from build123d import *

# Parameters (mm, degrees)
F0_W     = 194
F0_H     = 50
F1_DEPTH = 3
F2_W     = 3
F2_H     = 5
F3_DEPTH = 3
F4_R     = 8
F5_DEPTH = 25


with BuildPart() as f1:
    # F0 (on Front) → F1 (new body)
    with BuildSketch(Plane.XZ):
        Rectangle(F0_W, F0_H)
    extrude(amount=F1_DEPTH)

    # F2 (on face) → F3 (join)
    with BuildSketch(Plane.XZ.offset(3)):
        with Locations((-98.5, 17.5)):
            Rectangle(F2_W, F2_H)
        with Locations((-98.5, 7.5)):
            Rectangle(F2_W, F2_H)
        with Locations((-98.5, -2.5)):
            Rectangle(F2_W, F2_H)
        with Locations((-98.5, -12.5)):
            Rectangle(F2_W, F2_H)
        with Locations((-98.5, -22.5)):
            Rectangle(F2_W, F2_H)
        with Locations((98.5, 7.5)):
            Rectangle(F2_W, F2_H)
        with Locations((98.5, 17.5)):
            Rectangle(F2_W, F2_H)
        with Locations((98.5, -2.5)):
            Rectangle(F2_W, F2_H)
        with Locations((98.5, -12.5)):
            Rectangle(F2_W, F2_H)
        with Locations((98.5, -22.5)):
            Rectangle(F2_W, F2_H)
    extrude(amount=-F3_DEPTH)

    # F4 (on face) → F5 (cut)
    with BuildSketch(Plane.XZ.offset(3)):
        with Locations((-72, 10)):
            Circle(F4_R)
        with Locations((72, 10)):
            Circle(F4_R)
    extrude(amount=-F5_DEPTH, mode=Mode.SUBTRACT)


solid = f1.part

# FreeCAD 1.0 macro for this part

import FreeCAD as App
import Part
import Sketcher


def add_polygon(sketch, points):
    """Adds a closed chain of lines whose ends are joined by coincident constraints."""
    first, n = sketch.GeometryCount, len(points)
    for a, b in zip(points, points[1:] + points[:1]):
        sketch.addGeometry(Part.LineSegment(App.Vector(*a, 0), App.Vector(*b, 0)), False)
    for i in range(n):
        sketch.addConstraint(Sketcher.Constraint("Coincident", first + i, 2, first + (i + 1) % n, 1))

doc = App.newDocument("Part")
body = doc.addObject("PartDesign::Body", "Body")

# Sketch on XZ plane
sketch1 = doc.addObject("Sketcher::SketchObject", "Sketch")
body.addObject(sketch1)
sketch1.AttachmentSupport = (doc.XZ_Plane, [""])
sketch1.MapMode = "FlatFace"
add_polygon(sketch1, [(-97, 25), (-97, -25), (97, -25), (97, 25)])  # lines 0-3
sketch1.addConstraint(Sketcher.Constraint("Vertical", 0))
sketch1.addConstraint(Sketcher.Constraint("Horizontal", 1))
sketch1.addConstraint(Sketcher.Constraint("Vertical", 2))
sketch1.addConstraint(Sketcher.Constraint("Horizontal", 3))
sketch1.addConstraint(Sketcher.Constraint("Symmetric", 0, 2, 2, 2, -1, 1))
sketch1.addConstraint(Sketcher.Constraint("DistanceX", 1, 1, 1, 2, 194.0))
sketch1.addConstraint(Sketcher.Constraint("DistanceY", 0, 2, 0, 1, 50.0))
pad1 = doc.addObject("PartDesign::Pad", "Pad")
body.addObject(pad1)
pad1.Profile = sketch1
pad1.Length = 3

# Sketch on XZ plane
sketch2 = doc.addObject("Sketcher::SketchObject", "Sketch001")
body.addObject(sketch2)
sketch2.AttachmentSupport = (doc.XZ_Plane, [""])
sketch2.MapMode = "FlatFace"
sketch2.AttachmentOffset = App.Placement(App.Vector(0, 0, 3), App.Rotation())
add_polygon(sketch2, [(-100, 20), (-100, 15), (-97, 15), (-97, 20)])  # lines 0-3
add_polygon(sketch2, [(-100, 10), (-100, 5), (-97, 5), (-97, 10)])  # lines 4-7
add_polygon(sketch2, [(-100, 0), (-100, -5), (-97, -5), (-97, 0)])  # lines 8-11
add_polygon(sketch2, [(-100, -10), (-100, -15), (-97, -15), (-97, -10)])  # lines 12-15
add_polygon(sketch2, [(-100, -20), (-100, -25), (-97, -25), (-97, -20)])  # lines 16-19
add_polygon(sketch2, [(97, 10), (97, 5), (100, 5), (100, 10)])  # lines 20-23
add_polygon(sketch2, [(97, 20), (97, 15), (100, 15), (100, 20)])  # lines 24-27
add_polygon(sketch2, [(97, 0), (97, -5), (100, -5), (100, 0)])  # lines 28-31
add_polygon(sketch2, [(97, -10), (97, -15), (100, -15), (100, -10)])  # lines 32-35
add_polygon(sketch2, [(97, -20), (97, -25), (100, -25), (100, -20)])  # lines 36-39
sketch2.addConstraint(Sketcher.Constraint("Vertical", 0))
sketch2.addConstraint(Sketcher.Constraint("Horizontal", 1))
sketch2.addConstraint(Sketcher.Constraint("Vertical", 2))
sketch2.addConstraint(Sketcher.Constraint("Horizontal", 3))
sketch2.addConstraint(Sketcher.Constraint("Vertical", 4))
sketch2.addConstraint(Sketcher.Constraint("Horizontal", 5))
sketch2.addConstraint(Sketcher.Constraint("Vertical", 6))
sketch2.addConstraint(Sketcher.Constraint("Horizontal", 7))
sketch2.addConstraint(Sketcher.Constraint("Vertical", 8))
sketch2.addConstraint(Sketcher.Constraint("Horizontal", 9))
sketch2.addConstraint(Sketcher.Constraint("Vertical", 10))
sketch2.addConstraint(Sketcher.Constraint("Horizontal", 11))
sketch2.addConstraint(Sketcher.Constraint("Vertical", 12))
sketch2.addConstraint(Sketcher.Constraint("Horizontal", 13))
sketch2.addConstraint(Sketcher.Constraint("Vertical", 14))
sketch2.addConstraint(Sketcher.Constraint("Horizontal", 15))
sketch2.addConstraint(Sketcher.Constraint("Vertical", 16))
sketch2.addConstraint(Sketcher.Constraint("Horizontal", 17))
sketch2.addConstraint(Sketcher.Constraint("Vertical", 18))
sketch2.addConstraint(Sketcher.Constraint("Horizontal", 19))
sketch2.addConstraint(Sketcher.Constraint("Vertical", 20))
sketch2.addConstraint(Sketcher.Constraint("Horizontal", 21))
sketch2.addConstraint(Sketcher.Constraint("Vertical", 22))
sketch2.addConstraint(Sketcher.Constraint("Horizontal", 23))
sketch2.addConstraint(Sketcher.Constraint("Vertical", 24))
sketch2.addConstraint(Sketcher.Constraint("Horizontal", 25))
sketch2.addConstraint(Sketcher.Constraint("Vertical", 26))
sketch2.addConstraint(Sketcher.Constraint("Horizontal", 27))
sketch2.addConstraint(Sketcher.Constraint("Vertical", 28))
sketch2.addConstraint(Sketcher.Constraint("Horizontal", 29))
sketch2.addConstraint(Sketcher.Constraint("Vertical", 30))
sketch2.addConstraint(Sketcher.Constraint("Horizontal", 31))
sketch2.addConstraint(Sketcher.Constraint("Vertical", 32))
sketch2.addConstraint(Sketcher.Constraint("Horizontal", 33))
sketch2.addConstraint(Sketcher.Constraint("Vertical", 34))
sketch2.addConstraint(Sketcher.Constraint("Horizontal", 35))
sketch2.addConstraint(Sketcher.Constraint("Vertical", 36))
sketch2.addConstraint(Sketcher.Constraint("Horizontal", 37))
sketch2.addConstraint(Sketcher.Constraint("Vertical", 38))
sketch2.addConstraint(Sketcher.Constraint("Horizontal", 39))
sketch2.addConstraint(Sketcher.Constraint("Symmetric", 9, 2, 20, 2, -1, 1))
sketch2.addConstraint(Sketcher.Constraint("Symmetric", 15, 2, 22, 2, -1, 1))
sketch2.addConstraint(Sketcher.Constraint("Symmetric", 13, 2, 24, 2, -1, 1))
sketch2.addConstraint(Sketcher.Constraint("Symmetric", 19, 2, 26, 2, -1, 1))
sketch2.addConstraint(Sketcher.Constraint("Symmetric", 5, 2, 28, 2, -1, 1))
sketch2.addConstraint(Sketcher.Constraint("Symmetric", 11, 2, 30, 2, -1, 1))
sketch2.addConstraint(Sketcher.Constraint("Symmetric", 1, 2, 32, 2, -1, 1))
sketch2.addConstraint(Sketcher.Constraint("Symmetric", 7, 2, 34, 2, -1, 1))
sketch2.addConstraint(Sketcher.Constraint("Symmetric", 3, 2, 38, 2, -1, 1))
sketch2.addConstraint(Sketcher.Constraint("Symmetric", 5, 2, 20, 2, -2))
sketch2.addConstraint(Sketcher.Constraint("Symmetric", 7, 2, 22, 2, -2))
sketch2.addConstraint(Sketcher.Constraint("Symmetric", 1, 2, 24, 2, -2))
sketch2.addConstraint(Sketcher.Constraint("Symmetric", 3, 2, 26, 2, -2))
sketch2.addConstraint(Sketcher.Constraint("Symmetric", 17, 2, 36, 2, -2))
sketch2.addConstraint(Sketcher.Constraint("PointOnObject", 10, 2, -1))
sketch2.addConstraint(Sketcher.Constraint("Vertical", 3, 2, 4, 2))
sketch2.addConstraint(Sketcher.Constraint("Vertical", 2, 2, 5, 2))
sketch2.addConstraint(Sketcher.Constraint("Vertical", 7, 2, 8, 2))
sketch2.addConstraint(Sketcher.Constraint("Vertical", 14, 2, 17, 2))
sketch2.addConstraint(Sketcher.Constraint("Equal", 2, 4))
sketch2.addConstraint(Sketcher.Constraint("Equal", 6, 8))
sketch2.addConstraint(Sketcher.Constraint("Equal", 10, 12))
sketch2.addConstraint(Sketcher.Constraint("Equal", 14, 16))
sketch2.addConstraint(Sketcher.Constraint("DistanceX", 1, 1, 1, 2, 3.0))
sketch2.addConstraint(Sketcher.Constraint("DistanceY", 0, 2, 0, 1, 5.0))
sketch2.addConstraint(Sketcher.Constraint("DistanceX", 0, 2, -1, 1, 100.0))
pad2 = doc.addObject("PartDesign::Pad", "Pad001")
body.addObject(pad2)
pad2.Profile = sketch2
pad2.Length = 3
pad2.Reversed = True

# Sketch on XZ plane
sketch3 = doc.addObject("Sketcher::SketchObject", "Sketch002")
body.addObject(sketch3)
sketch3.AttachmentSupport = (doc.XZ_Plane, [""])
sketch3.MapMode = "FlatFace"
sketch3.AttachmentOffset = App.Placement(App.Vector(0, 0, 3), App.Rotation())
sketch3.addGeometry(Part.Circle(App.Vector(-72, 10, 0), App.Vector(0, 0, 1), 8), False)
sketch3.addGeometry(Part.Circle(App.Vector(72, 10, 0), App.Vector(0, 0, 1), 8), False)
sketch3.addConstraint(Sketcher.Constraint("Equal", 0, 1))
sketch3.addConstraint(Sketcher.Constraint("Symmetric", 0, 3, 1, 3, -2))
sketch3.addConstraint(Sketcher.Constraint("Diameter", 0, 16.0))
sketch3.addConstraint(Sketcher.Constraint("DistanceX", 0, 3, -1, 1, 72.0))
sketch3.addConstraint(Sketcher.Constraint("DistanceY", -1, 1, 0, 3, 10.0))
pocket1 = doc.addObject("PartDesign::Pocket", "Pocket")
body.addObject(pocket1)
pocket1.Profile = sketch3
pocket1.Length = 25

doc.recompute()
